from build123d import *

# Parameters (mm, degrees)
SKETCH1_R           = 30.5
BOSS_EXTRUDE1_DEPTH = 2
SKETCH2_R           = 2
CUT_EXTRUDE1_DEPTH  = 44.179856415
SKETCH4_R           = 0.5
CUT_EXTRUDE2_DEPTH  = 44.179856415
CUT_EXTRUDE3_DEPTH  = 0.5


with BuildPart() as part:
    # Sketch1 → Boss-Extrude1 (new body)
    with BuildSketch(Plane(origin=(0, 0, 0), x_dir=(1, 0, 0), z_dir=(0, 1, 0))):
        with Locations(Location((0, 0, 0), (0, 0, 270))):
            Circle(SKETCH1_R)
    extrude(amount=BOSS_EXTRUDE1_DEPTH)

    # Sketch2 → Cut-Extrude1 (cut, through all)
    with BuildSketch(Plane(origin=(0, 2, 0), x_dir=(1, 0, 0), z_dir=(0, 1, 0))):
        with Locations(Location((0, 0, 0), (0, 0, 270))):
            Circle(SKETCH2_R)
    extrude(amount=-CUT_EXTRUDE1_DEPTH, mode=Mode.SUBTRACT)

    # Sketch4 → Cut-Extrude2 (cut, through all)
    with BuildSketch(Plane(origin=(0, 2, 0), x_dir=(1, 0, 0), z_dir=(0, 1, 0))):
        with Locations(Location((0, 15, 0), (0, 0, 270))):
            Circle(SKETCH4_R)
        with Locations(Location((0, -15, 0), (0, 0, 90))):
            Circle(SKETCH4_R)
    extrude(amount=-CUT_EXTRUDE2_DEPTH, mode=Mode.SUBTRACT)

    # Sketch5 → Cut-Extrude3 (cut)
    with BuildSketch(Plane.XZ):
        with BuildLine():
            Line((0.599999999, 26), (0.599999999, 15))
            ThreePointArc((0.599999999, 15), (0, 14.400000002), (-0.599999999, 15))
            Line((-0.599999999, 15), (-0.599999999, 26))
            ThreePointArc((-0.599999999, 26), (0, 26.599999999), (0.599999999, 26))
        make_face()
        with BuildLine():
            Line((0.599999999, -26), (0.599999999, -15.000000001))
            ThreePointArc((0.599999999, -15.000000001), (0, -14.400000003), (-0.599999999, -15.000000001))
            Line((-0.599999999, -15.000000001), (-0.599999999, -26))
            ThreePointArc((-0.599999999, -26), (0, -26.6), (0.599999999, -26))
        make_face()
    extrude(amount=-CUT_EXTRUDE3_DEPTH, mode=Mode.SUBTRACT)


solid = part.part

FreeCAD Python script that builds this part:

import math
import FreeCAD as App
import Part
import Sketcher

V = App.Vector

doc = App.newDocument("Part")
params = doc.addObject("Spreadsheet::Sheet", "Params")
for row, (alias, value) in enumerate([
    ("sketch1_diameter", "61 mm"),
    ("pad1_length", "2 mm"),
    ("sketch2_diameter", "4 mm"),
    ("sketch3_diameter", "1 mm"),
    ("sketch4_radius", "0.6 mm"),
    ("sketch4_height", "11 mm"),
    ("pocket3_length", "0.5 mm"),
], start=1):
    params.set(f"A{row}", alias)
    params.set(f"B{row}", "=" + value)
    params.setAlias(f"B{row}", alias)

body = doc.addObject("PartDesign::Body", "Body")

# Sketch on XZ plane
sketch1 = body.newObject("Sketcher::SketchObject", "Sketch")
sketch1.AttachmentSupport = (doc.getObject("XZ_Plane"), [""])
sketch1.MapMode = "FlatFace"
sketch1.addGeometry(Part.Circle(V(0, 0, 0), V(0, 0, 1), 30), False)
sketch1.addConstraint([
    Sketcher.Constraint("Coincident", 0, 3, -1, 1),
    Sketcher.Constraint("Diameter", 0, 61.0),
])
sketch1.setExpression("Constraints[1]", "Params.sketch1_diameter")
pad1 = body.newObject("PartDesign::Pad", "Pad")
pad1.Profile = sketch1
pad1.setExpression("Length", "Params.pad1_length")
pad1.Reversed = True

# Sketch on XZ plane
sketch2 = body.newObject("Sketcher::SketchObject", "Sketch001")
sketch2.AttachmentSupport = (doc.getObject("XZ_Plane"), [""])
sketch2.MapMode = "FlatFace"
sketch2.AttachmentOffset = App.Placement(V(0, 0, -2), App.Rotation())
sketch2.addGeometry(Part.Circle(V(0, 0, 0), V(0, 0, 1), 2), False)
sketch2.addConstraint([
    Sketcher.Constraint("Coincident", 0, 3, -1, 1),
    Sketcher.Constraint("Diameter", 0, 4.0),
])
sketch2.setExpression("Constraints[1]", "Params.sketch2_diameter")
pocket1 = body.newObject("PartDesign::Pocket", "Pocket")
pocket1.Profile = sketch2
pocket1.Type = "ThroughAll"
pocket1.Reversed = True

# Sketch on XZ plane
sketch3 = body.newObject("Sketcher::SketchObject", "Sketch002")
sketch3.AttachmentSupport = (doc.getObject("XZ_Plane"), [""])
sketch3.MapMode = "FlatFace"
sketch3.AttachmentOffset = App.Placement(V(0, 0, -2), App.Rotation())
sketch3.addGeometry([
    Part.Circle(V(0, -15, 0), V(0, 0, 1), 0.5),
    Part.Circle(V(0, 15, 0), V(0, 0, 1), 0.5),
], False)
sketch3.addConstraint([
    Sketcher.Constraint("Equal", 0, 1),
    Sketcher.Constraint("Symmetric", 0, 3, 1, 3, -1, 1),
    Sketcher.Constraint("PointOnObject", 0, 3, -2),
    Sketcher.Constraint("Diameter", 0, 1.0),
    Sketcher.Constraint("DistanceY", 0, 3, -1, 1, 15.0),
])
sketch3.setExpression("Constraints[3]", "Params.sketch3_diameter")
pocket2 = body.newObject("PartDesign::Pocket", "Pocket001")
pocket2.Profile = sketch3
pocket2.Type = "ThroughAll"
pocket2.Reversed = True

# Sketch on XZ plane
sketch4 = body.newObject("Sketcher::SketchObject", "Sketch003")
sketch4.AttachmentSupport = (doc.getObject("XZ_Plane"), [""])
sketch4.MapMode = "FlatFace"
sketch4.addGeometry([
    Part.LineSegment(V(0.6, 15, 0), V(0.6, 26, 0)),  # 0
    Part.ArcOfCircle(Part.Circle(V(0, 26, 0), V(0, 0, 1), 0.6), math.radians(0), math.radians(180)),  # 1
    Part.LineSegment(V(-0.6, 26, 0), V(-0.6, 15, 0)),  # 2
    Part.ArcOfCircle(Part.Circle(V(0, 15, 0), V(0, 0, 1), 0.6), math.radians(-180), math.radians(0)),  # 3
    Part.LineSegment(V(0.6, -26, 0), V(0.6, -15, 0)),  # 4
    Part.ArcOfCircle(Part.Circle(V(0, -15, 0), V(0, 0, 1), 0.6), math.radians(0), math.radians(180)),  # 5
    Part.LineSegment(V(-0.6, -15, 0), V(-0.6, -26, 0)),  # 6
    Part.ArcOfCircle(Part.Circle(V(0, -26, 0), V(0, 0, 1), 0.6), math.radians(180), math.radians(360)),  # 7
], False)
sketch4.addConstraint([
    Sketcher.Constraint("Tangent", 0, 2, 1, 1),
    Sketcher.Constraint("Tangent", 1, 2, 2, 1),
    Sketcher.Constraint("Tangent", 2, 2, 3, 1),
    Sketcher.Constraint("Tangent", 3, 2, 0, 1),
    Sketcher.Constraint("Tangent", 4, 2, 5, 1),
    Sketcher.Constraint("Tangent", 5, 2, 6, 1),
    Sketcher.Constraint("Tangent", 6, 2, 7, 1),
    Sketcher.Constraint("Tangent", 7, 2, 4, 1),
    Sketcher.Constraint("Vertical", 0),
    Sketcher.Constraint("Vertical", 2),
    Sketcher.Constraint("Vertical", 4),
    Sketcher.Constraint("Vertical", 6),
    Sketcher.Constraint("Equal", 3, 5),
    Sketcher.Constraint("Symmetric", 3, 3, 5, 3, -1, 1),
    Sketcher.Constraint("Symmetric", 1, 3, 7, 3, -1),
    Sketcher.Constraint("Radius", 1, 0.6),
    Sketcher.Constraint("DistanceY", 0, 1, 0, 2, 11.0),
    Sketcher.Constraint("DistanceY", -1, 1, 1, 3, 26.0),
])
sketch4.setExpression("Constraints[15]", "Params.sketch4_radius")
sketch4.setExpression("Constraints[16]", "Params.sketch4_height")
pocket3 = body.newObject("PartDesign::Pocket", "Pocket002")
pocket3.Profile = sketch4
pocket3.setExpression("Length", "Params.pocket3_length")

doc.recompute()
